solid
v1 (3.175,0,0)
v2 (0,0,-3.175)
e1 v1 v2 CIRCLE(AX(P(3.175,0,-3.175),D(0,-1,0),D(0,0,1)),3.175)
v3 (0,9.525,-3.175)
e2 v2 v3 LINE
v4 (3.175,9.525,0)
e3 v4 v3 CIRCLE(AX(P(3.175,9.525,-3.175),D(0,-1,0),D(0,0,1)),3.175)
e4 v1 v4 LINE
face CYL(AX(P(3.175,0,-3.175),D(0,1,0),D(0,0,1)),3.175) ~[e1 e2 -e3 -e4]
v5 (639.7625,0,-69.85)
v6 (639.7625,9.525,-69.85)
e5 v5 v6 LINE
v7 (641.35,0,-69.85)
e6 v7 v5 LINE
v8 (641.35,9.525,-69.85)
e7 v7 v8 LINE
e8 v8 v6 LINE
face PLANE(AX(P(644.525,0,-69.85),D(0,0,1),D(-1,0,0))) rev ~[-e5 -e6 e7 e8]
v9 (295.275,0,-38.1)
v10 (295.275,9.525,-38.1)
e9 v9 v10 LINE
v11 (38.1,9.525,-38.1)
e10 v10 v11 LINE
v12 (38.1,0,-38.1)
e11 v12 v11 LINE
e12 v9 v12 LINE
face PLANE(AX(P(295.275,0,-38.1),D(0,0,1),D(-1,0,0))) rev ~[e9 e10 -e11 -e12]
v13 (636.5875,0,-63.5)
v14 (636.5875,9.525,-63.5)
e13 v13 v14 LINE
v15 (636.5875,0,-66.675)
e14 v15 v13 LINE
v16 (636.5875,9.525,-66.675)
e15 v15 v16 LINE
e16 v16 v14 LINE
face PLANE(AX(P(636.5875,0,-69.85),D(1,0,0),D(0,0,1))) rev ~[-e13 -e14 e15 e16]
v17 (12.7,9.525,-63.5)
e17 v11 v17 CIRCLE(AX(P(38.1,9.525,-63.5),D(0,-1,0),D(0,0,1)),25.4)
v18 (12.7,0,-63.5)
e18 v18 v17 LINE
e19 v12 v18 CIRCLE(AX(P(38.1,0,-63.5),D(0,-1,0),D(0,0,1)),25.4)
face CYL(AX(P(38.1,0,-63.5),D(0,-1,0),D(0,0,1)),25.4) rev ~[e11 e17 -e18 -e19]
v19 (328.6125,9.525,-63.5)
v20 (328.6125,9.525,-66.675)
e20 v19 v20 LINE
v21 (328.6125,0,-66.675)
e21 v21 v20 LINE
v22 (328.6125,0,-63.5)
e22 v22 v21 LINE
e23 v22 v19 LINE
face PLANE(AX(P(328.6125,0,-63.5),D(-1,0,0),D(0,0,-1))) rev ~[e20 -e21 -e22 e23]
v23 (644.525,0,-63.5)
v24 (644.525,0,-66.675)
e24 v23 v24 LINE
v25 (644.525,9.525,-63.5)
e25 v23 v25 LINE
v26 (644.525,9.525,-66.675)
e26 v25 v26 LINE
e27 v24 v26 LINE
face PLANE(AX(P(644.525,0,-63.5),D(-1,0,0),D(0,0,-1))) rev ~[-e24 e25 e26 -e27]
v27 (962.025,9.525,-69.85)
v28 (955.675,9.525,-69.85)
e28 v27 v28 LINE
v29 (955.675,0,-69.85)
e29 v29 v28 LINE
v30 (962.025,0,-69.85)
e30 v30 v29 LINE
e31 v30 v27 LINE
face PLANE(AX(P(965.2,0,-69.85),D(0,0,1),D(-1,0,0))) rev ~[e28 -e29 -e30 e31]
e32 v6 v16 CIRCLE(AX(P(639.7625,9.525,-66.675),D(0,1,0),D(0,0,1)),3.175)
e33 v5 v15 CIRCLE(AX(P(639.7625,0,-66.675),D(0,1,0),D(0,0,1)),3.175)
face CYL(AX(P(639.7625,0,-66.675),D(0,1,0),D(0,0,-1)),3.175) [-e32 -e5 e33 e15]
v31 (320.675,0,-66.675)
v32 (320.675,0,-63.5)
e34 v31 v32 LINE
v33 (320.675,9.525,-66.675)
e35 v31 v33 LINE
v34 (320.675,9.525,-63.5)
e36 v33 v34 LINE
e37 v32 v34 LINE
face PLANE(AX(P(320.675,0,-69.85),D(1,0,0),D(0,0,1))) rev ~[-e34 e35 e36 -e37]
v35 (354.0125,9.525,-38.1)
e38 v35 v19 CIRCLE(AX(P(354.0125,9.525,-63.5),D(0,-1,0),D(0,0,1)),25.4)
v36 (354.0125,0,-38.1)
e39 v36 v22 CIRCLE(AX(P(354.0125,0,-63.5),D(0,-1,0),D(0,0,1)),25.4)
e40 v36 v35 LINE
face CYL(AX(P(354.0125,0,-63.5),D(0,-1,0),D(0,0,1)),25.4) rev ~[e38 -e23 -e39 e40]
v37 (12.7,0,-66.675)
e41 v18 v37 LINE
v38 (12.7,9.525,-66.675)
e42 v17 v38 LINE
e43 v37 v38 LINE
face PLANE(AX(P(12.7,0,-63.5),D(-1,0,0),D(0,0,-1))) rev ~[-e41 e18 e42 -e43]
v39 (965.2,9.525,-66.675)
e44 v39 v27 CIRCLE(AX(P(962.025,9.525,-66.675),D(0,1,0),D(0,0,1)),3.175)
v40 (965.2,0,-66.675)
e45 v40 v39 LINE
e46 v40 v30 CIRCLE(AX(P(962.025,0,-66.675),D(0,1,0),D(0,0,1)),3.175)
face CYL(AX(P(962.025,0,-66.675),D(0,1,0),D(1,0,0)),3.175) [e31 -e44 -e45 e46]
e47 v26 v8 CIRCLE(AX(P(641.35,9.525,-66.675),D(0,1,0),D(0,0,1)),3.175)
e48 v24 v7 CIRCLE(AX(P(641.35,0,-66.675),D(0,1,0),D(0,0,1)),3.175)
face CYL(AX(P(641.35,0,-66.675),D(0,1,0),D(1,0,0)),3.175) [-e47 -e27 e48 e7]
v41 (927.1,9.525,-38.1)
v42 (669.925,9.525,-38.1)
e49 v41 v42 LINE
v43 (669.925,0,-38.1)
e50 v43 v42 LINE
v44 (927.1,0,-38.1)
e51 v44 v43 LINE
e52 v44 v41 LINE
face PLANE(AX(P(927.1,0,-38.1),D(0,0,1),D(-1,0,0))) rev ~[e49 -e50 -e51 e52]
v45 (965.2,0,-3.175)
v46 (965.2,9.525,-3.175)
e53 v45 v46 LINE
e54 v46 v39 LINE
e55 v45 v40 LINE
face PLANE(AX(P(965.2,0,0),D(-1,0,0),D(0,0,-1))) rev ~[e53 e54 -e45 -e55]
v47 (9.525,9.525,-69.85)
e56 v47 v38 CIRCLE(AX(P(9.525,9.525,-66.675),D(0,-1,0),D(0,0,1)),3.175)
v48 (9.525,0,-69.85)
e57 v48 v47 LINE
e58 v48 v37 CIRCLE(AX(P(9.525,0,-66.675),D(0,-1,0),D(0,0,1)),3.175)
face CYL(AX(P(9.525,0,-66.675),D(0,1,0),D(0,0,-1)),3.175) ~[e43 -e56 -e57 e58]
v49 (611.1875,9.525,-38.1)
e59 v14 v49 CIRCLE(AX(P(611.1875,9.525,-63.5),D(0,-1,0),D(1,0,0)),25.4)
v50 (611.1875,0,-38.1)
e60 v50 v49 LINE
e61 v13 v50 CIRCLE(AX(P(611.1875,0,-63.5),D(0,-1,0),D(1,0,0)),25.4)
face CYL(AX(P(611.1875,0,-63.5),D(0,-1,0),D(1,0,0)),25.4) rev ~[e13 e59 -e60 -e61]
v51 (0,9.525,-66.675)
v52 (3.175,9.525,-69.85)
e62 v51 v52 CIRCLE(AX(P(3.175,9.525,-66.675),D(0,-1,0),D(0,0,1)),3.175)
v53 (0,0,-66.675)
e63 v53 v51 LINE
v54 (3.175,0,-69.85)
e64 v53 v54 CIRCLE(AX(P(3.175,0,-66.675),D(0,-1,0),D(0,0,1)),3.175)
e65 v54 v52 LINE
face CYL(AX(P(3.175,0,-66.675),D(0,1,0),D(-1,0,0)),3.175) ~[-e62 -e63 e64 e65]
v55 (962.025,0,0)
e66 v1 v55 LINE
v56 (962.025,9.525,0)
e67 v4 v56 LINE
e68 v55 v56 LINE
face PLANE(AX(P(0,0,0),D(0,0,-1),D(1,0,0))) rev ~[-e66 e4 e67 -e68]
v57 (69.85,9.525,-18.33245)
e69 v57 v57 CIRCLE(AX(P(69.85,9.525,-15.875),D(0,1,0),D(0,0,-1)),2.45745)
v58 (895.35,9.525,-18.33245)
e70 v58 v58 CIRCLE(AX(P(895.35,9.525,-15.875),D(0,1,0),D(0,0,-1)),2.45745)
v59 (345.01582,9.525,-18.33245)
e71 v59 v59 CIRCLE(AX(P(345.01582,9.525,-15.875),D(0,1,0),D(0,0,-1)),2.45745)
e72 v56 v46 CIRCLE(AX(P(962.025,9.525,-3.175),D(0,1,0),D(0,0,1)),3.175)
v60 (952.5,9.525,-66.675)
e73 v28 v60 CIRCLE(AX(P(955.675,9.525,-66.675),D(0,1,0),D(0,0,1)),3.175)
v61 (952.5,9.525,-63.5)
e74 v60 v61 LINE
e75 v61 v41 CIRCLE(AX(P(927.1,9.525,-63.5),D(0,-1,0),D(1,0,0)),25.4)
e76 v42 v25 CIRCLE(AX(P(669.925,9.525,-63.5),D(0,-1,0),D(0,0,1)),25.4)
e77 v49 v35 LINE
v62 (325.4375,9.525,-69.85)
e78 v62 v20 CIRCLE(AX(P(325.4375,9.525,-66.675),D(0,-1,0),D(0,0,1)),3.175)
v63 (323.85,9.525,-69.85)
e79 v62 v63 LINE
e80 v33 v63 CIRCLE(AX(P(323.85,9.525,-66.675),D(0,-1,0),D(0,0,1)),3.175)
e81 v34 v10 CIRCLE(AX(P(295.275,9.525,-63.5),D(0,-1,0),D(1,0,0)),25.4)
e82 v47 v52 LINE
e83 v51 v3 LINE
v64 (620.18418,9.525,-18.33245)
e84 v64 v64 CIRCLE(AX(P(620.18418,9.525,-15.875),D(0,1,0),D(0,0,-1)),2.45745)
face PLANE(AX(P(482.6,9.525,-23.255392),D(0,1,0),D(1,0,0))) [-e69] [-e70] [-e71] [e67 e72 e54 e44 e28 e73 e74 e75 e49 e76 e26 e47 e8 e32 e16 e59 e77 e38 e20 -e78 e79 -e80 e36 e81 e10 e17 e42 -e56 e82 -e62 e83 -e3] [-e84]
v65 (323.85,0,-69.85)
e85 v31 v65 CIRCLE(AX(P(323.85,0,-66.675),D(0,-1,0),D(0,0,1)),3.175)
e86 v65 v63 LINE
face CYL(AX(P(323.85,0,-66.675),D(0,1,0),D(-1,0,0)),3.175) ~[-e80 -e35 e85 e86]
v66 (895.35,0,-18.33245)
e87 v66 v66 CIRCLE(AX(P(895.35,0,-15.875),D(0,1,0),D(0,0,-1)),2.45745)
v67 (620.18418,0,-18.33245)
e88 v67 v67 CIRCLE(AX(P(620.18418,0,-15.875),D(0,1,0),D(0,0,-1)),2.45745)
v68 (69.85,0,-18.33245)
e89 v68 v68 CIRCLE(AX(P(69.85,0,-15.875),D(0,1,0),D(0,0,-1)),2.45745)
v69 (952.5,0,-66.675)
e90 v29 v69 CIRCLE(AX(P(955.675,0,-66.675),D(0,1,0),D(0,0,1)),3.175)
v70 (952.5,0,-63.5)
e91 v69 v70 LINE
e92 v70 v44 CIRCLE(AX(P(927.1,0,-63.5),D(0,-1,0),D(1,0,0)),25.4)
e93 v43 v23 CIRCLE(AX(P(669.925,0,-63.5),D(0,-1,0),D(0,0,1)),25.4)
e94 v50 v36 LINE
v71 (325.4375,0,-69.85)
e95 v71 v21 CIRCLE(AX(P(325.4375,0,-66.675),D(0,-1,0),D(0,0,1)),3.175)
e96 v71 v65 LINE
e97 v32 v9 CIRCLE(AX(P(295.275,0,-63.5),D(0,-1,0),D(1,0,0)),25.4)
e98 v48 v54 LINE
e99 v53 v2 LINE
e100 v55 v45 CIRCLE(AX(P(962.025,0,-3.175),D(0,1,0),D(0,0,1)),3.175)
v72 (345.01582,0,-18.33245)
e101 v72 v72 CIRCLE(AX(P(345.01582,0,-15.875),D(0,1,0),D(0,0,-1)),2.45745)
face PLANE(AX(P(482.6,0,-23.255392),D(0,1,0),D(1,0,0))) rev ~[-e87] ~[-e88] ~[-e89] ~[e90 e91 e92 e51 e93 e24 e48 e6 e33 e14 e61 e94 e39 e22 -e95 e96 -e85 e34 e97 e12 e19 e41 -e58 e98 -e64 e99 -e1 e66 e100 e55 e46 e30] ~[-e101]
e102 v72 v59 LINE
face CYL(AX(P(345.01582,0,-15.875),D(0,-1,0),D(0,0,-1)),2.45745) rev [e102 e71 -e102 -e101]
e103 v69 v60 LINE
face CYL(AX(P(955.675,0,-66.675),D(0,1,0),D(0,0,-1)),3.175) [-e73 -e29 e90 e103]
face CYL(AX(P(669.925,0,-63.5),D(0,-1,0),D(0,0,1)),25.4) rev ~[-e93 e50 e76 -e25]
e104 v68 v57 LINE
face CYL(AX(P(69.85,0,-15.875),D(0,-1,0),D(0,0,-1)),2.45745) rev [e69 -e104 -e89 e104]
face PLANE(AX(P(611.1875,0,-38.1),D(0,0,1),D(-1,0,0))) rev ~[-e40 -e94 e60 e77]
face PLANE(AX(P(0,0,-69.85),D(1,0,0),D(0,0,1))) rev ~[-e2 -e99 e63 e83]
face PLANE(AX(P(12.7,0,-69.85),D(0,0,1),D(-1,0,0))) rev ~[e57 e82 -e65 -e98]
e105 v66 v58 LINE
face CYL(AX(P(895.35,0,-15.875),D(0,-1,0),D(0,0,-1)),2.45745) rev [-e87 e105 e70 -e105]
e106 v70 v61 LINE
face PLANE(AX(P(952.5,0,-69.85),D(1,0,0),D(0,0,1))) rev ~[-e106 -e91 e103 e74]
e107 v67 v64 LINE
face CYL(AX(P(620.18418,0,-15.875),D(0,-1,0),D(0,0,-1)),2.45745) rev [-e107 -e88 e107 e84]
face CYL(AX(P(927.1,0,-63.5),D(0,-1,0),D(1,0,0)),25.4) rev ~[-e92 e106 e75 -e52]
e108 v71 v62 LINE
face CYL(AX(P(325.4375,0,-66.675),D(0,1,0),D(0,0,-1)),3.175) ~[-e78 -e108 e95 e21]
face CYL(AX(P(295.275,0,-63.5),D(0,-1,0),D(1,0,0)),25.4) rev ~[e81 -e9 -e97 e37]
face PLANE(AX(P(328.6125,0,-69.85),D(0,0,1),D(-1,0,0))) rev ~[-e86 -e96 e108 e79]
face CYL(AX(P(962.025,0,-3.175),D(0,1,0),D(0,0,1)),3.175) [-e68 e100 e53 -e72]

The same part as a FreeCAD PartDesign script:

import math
import FreeCAD as App
import Part
import Sketcher

V = App.Vector
Q = App.Units.Quantity


def edges_at(feature, points):
    """Names of the edges that pass closest to the given points."""
    edges = feature.Shape.Edges
    near = lambda p: min(range(len(edges)), key=lambda i: edges[i].distToShape(Part.Vertex(*p))[0])
    return sorted({f"Edge{near(p) + 1}" for p in points})

doc = App.newDocument("Part")
body = doc.addObject("PartDesign::Body", "Body")

# Sketch on XZ plane
sketch1 = body.newObject("Sketcher::SketchObject", "Sketch")
sketch1.AttachmentSupport = (doc.getObject("XZ_Plane"), [""])
sketch1.MapMode = "FlatFace"
sketch1.addGeometry([
    Part.LineSegment(V(0, 0, 0), V(965.2, 0, 0)),  # 0
    Part.LineSegment(V(965.2, 0, 0), V(965.2, -69.8, 0)),  # 1
    Part.LineSegment(V(965.2, -69.8, 0), V(952.5, -69.8, 0)),  # 2
    Part.LineSegment(V(952.5, -69.8, 0), V(952.5, -63.5, 0)),  # 3
    Part.ArcOfCircle(Part.Circle(V(927.1, -63.5, 0), V(0, 0, 1), 25.4), math.radians(0), math.radians(90)),  # 4
    Part.LineSegment(V(927.1, -38.1, 0), V(669.9, -38.1, 0)),  # 5
    Part.ArcOfCircle(Part.Circle(V(669.9, -63.5, 0), V(0, 0, 1), 25.4), math.radians(90), math.radians(180)),  # 6
    Part.LineSegment(V(644.5, -63.5, 0), V(644.5, -69.8, 0)),  # 7
    Part.LineSegment(V(644.5, -69.8, 0), V(636.6, -69.8, 0)),  # 8
    Part.LineSegment(V(636.6, -69.8, 0), V(636.6, -63.5, 0)),  # 9
    Part.ArcOfCircle(Part.Circle(V(611.2, -63.5, 0), V(0, 0, 1), 25.4), math.radians(0), math.radians(90)),  # 10
    Part.LineSegment(V(611.2, -38.1, 0), V(354, -38.1, 0)),  # 11
    Part.ArcOfCircle(Part.Circle(V(354, -63.5, 0), V(0, 0, 1), 25.4), math.radians(90), math.radians(180)),  # 12
    Part.LineSegment(V(328.6, -63.5, 0), V(328.6, -69.8, 0)),  # 13
    Part.LineSegment(V(328.6, -69.8, 0), V(320.7, -69.8, 0)),  # 14
    Part.LineSegment(V(320.7, -69.8, 0), V(320.7, -63.5, 0)),  # 15
    Part.ArcOfCircle(Part.Circle(V(295.3, -63.5, 0), V(0, 0, 1), 25.4), math.radians(0), math.radians(90)),  # 16
    Part.LineSegment(V(295.3, -38.1, 0), V(38.1, -38.1, 0)),  # 17
    Part.ArcOfCircle(Part.Circle(V(38.1, -63.5, 0), V(0, 0, 1), 25.4), math.radians(90), math.radians(180)),  # 18
    Part.LineSegment(V(12.7, -63.5, 0), V(12.7, -69.8, 0)),  # 19
    Part.LineSegment(V(12.7, -69.8, 0), V(0, -69.8, 0)),  # 20
    Part.LineSegment(V(0, -69.8, 0), V(0, 0, 0)),  # 21
    Part.Circle(V(69.8, -15.9, 0), V(0, 0, 1), 2.5),  # 22
    Part.Circle(V(345, -15.9, 0), V(0, 0, 1), 2.5),  # 23
    Part.Circle(V(620.2, -15.9, 0), V(0, 0, 1), 2.5),  # 24
    Part.Circle(V(895.4, -15.9, 0), V(0, 0, 1), 2.5),  # 25
], False)
sketch1.addConstraint([
    Sketcher.Constraint("Coincident", 0, 2, 1, 1),
    Sketcher.Constraint("Coincident", 1, 2, 2, 1),
    Sketcher.Constraint("Coincident", 2, 2, 3, 1),
    Sketcher.Constraint("Tangent", 3, 2, 4, 1),
    Sketcher.Constraint("Tangent", 4, 2, 5, 1),
    Sketcher.Constraint("Tangent", 5, 2, 6, 1),
    Sketcher.Constraint("Tangent", 6, 2, 7, 1),
    Sketcher.Constraint("Coincident", 7, 2, 8, 1),
    Sketcher.Constraint("Coincident", 8, 2, 9, 1),
    Sketcher.Constraint("Tangent", 9, 2, 10, 1),
    Sketcher.Constraint("Tangent", 10, 2, 11, 1),
    Sketcher.Constraint("Tangent", 11, 2, 12, 1),
    Sketcher.Constraint("Tangent", 12, 2, 13, 1),
    Sketcher.Constraint("Coincident", 13, 2, 14, 1),
    Sketcher.Constraint("Coincident", 14, 2, 15, 1),
    Sketcher.Constraint("Tangent", 15, 2, 16, 1),
    Sketcher.Constraint("Tangent", 16, 2, 17, 1),
    Sketcher.Constraint("Tangent", 17, 2, 18, 1),
    Sketcher.Constraint("Tangent", 18, 2, 19, 1),
    Sketcher.Constraint("Coincident", 19, 2, 20, 1),
    Sketcher.Constraint("Coincident", 20, 2, 21, 1),
    Sketcher.Constraint("Coincident", 21, 2, 0, 1),
    Sketcher.Constraint("Horizontal", 0),
    Sketcher.Constraint("Vertical", 1),
    Sketcher.Constraint("Horizontal", 2),
    Sketcher.Constraint("Vertical", 3),
    Sketcher.Constraint("Horizontal", 5),
    Sketcher.Constraint("Vertical", 7),
    Sketcher.Constraint("Horizontal", 8),
    Sketcher.Constraint("Vertical", 9),
    Sketcher.Constraint("Horizontal", 11),
    Sketcher.Constraint("Vertical", 13),
    Sketcher.Constraint("Horizontal", 14),
    Sketcher.Constraint("Vertical", 15),
    Sketcher.Constraint("Horizontal", 17),
    Sketcher.Constraint("Vertical", 19),
    Sketcher.Constraint("Horizontal", 20),
    Sketcher.Constraint("Vertical", 21),
    Sketcher.Constraint("Coincident", 21, 2, -1, 1),
    Sketcher.Constraint("Equal", 4, 6),
    Sketcher.Constraint("Equal", 6, 10),
    Sketcher.Constraint("Equal", 10, 12),
    Sketcher.Constraint("Equal", 12, 16),
    Sketcher.Constraint("Equal", 16, 18),
    Sketcher.Constraint("Equal", 22, 23),
    Sketcher.Constraint("Equal", 23, 24),
    Sketcher.Constraint("Equal", 24, 25),
    Sketcher.Constraint("Horizontal", 6, 3, 10, 3),
    Sketcher.Constraint("Horizontal", 12, 3, 16, 3),
    Sketcher.Constraint("Horizontal", 22, 3, 23, 3),
    Sketcher.Constraint("Horizontal", 23, 3, 24, 3),
    Sketcher.Constraint("Horizontal", 24, 3, 25, 3),
    Sketcher.Constraint("Horizontal", 2, 2, 7, 2),
    Sketcher.Constraint("Horizontal", 8, 2, 13, 2),
    Sketcher.Constraint("Horizontal", 14, 2, 19, 2),
    Sketcher.Constraint("Equal", 5, 11),
    Sketcher.Constraint("Equal", 8, 14),
    Sketcher.Constraint("Equal", 11, 17),
    Sketcher.Constraint("Equal", 2, 20),
    Sketcher.Constraint("Radius", 4, Q("1 in")),
    Sketcher.Constraint("DistanceX", 0, 1, 0, 2, Q("38 in")),
    Sketcher.Constraint("DistanceX", 2, 2, 2, 1, Q("0.5 in")),
    Sketcher.Constraint("Diameter", 22, Q("0.1935 in")),
    Sketcher.Constraint("DistanceY", 1, 2, 1, 1, Q("2.75 in")),
    Sketcher.Constraint("DistanceY", 3, 1, 3, 2, Q("0.25 in")),
    Sketcher.Constraint("DistanceX", 5, 2, 5, 1, Q("10.125 in")),
    Sketcher.Constraint("DistanceX", -1, 1, 22, 3, Q("2.75 in")),
    Sketcher.Constraint("DistanceX", -1, 1, 25, 3, Q("35.25 in")),
    Sketcher.Constraint("DistanceY", 22, 3, -1, 1, Q("0.625 in")),
    Sketcher.Constraint("DistanceX", -1, 1, 23, 3, Q("13.5833 in")),
    Sketcher.Constraint("DistanceX", -1, 1, 24, 3, Q("24.4167 in")),
])
pad1 = body.newObject("PartDesign::Pad", "Pad")
pad1.Profile = sketch1
pad1.Length = Q("0.375 in")
pad1.Reversed = True
doc.recompute()

fillet = body.newObject("PartDesign::Fillet", "Fillet")
fillet.Base = (pad1, edges_at(pad1, [
    (0, 4.763, -69.85),
    (12.7, 4.763, -69.85),
    (320.675, 4.763, -69.85),
    (328.613, 4.763, -69.85),
    (636.587, 4.763, -69.85),
    (644.525, 4.763, -69.85),
    (952.5, 4.763, -69.85),
    (965.2, 4.763, -69.85),
    (965.2, 4.763, 0),
    (0, 4.763, 0),
]))
fillet.Radius = Q("0.125 in")

doc.recompute()
